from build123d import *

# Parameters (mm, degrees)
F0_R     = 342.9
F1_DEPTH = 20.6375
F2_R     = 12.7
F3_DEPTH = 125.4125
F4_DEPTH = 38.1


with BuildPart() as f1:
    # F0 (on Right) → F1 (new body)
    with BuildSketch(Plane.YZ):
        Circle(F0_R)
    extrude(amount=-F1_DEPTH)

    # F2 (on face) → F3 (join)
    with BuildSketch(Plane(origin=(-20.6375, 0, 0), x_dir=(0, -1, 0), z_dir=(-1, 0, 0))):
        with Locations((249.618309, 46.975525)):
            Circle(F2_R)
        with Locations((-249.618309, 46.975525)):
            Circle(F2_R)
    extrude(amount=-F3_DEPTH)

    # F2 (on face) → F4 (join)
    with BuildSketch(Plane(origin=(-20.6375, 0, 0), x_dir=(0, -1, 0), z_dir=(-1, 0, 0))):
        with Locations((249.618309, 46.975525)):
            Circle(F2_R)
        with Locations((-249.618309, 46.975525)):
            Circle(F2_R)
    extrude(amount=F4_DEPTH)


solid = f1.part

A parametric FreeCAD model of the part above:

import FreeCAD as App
import Part
import Sketcher
from FreeCAD import Vector
Q = App.Units.Quantity

doc = App.newDocument("Part")
body = doc.addObject("PartDesign::Body", "Body")

# Sketch on YZ plane
sketch1 = body.newObject("Sketcher::SketchObject", "Sketch")
sketch1.AttachmentSupport = (doc.getObject("YZ_Plane"), [""])
sketch1.MapMode = "FlatFace"
sketch1.addGeometry(Part.Circle(Vector(0, 0, 0), Vector(0, 0, 1), 343), False)
sketch1.addConstraint([
    Sketcher.Constraint("Coincident", 0, 3, -1, 1),
    Sketcher.Constraint("Diameter", 0, Q("27 in")),
])
pad1 = body.newObject("PartDesign::Pad", "Pad")
pad1.Profile = sketch1
pad1.Length = Q("0.8125 in")
pad1.Reversed = True

# Sketch on YZ plane
sketch2 = body.newObject("Sketcher::SketchObject", "Sketch001")
sketch2.AttachmentSupport = (doc.getObject("YZ_Plane"), [""])
sketch2.MapMode = "FlatFace"
sketch2.AttachmentOffset = App.Placement(Vector(0, 0, -0.8125 * 25.4), App.Rotation())
sketch2.addGeometry([
    Part.Circle(Vector(-250, 47, 0), Vector(0, 0, 1), 13),
    Part.Circle(Vector(250, 47, 0), Vector(0, 0, 1), 13),
], False)
sketch2.addConstraint([
    Sketcher.Constraint("Equal", 0, 1),
    Sketcher.Constraint("Symmetric", 0, 3, 1, 3, -2),
    Sketcher.Constraint("Diameter", 0, Q("1 in")),
    Sketcher.Constraint("DistanceX", 0, 3, -1, 1, 249.618309),
    Sketcher.Constraint("DistanceY", -1, 1, 0, 3, 46.975525),
])
pad2 = body.newObject("PartDesign::Pad", "Pad001")
pad2.Profile = sketch2
pad2.Length = Q("4.9375 in")

# Sketch on YZ plane
sketch3 = body.newObject("Sketcher::SketchObject", "Sketch002")
sketch3.AttachmentSupport = (doc.getObject("YZ_Plane"), [""])
sketch3.MapMode = "FlatFace"
sketch3.AttachmentOffset = App.Placement(Vector(0, 0, -0.8125 * 25.4), App.Rotation())
sketch3.addGeometry([
    Part.Circle(Vector(-250, 47, 0), Vector(0, 0, 1), 13),
    Part.Circle(Vector(250, 47, 0), Vector(0, 0, 1), 13),
], False)
sketch3.addConstraint([
    Sketcher.Constraint("Equal", 0, 1),
    Sketcher.Constraint("Symmetric", 0, 3, 1, 3, -2),
    Sketcher.Constraint("Diameter", 0, Q("1 in")),
    Sketcher.Constraint("DistanceX", 0, 3, -1, 1, 249.618309),
    Sketcher.Constraint("DistanceY", -1, 1, 0, 3, 46.975525),
])
pad3 = body.newObject("PartDesign::Pad", "Pad002")
pad3.Profile = sketch3
pad3.Length = Q("1.5 in")
pad3.Reversed = True

doc.recompute()
